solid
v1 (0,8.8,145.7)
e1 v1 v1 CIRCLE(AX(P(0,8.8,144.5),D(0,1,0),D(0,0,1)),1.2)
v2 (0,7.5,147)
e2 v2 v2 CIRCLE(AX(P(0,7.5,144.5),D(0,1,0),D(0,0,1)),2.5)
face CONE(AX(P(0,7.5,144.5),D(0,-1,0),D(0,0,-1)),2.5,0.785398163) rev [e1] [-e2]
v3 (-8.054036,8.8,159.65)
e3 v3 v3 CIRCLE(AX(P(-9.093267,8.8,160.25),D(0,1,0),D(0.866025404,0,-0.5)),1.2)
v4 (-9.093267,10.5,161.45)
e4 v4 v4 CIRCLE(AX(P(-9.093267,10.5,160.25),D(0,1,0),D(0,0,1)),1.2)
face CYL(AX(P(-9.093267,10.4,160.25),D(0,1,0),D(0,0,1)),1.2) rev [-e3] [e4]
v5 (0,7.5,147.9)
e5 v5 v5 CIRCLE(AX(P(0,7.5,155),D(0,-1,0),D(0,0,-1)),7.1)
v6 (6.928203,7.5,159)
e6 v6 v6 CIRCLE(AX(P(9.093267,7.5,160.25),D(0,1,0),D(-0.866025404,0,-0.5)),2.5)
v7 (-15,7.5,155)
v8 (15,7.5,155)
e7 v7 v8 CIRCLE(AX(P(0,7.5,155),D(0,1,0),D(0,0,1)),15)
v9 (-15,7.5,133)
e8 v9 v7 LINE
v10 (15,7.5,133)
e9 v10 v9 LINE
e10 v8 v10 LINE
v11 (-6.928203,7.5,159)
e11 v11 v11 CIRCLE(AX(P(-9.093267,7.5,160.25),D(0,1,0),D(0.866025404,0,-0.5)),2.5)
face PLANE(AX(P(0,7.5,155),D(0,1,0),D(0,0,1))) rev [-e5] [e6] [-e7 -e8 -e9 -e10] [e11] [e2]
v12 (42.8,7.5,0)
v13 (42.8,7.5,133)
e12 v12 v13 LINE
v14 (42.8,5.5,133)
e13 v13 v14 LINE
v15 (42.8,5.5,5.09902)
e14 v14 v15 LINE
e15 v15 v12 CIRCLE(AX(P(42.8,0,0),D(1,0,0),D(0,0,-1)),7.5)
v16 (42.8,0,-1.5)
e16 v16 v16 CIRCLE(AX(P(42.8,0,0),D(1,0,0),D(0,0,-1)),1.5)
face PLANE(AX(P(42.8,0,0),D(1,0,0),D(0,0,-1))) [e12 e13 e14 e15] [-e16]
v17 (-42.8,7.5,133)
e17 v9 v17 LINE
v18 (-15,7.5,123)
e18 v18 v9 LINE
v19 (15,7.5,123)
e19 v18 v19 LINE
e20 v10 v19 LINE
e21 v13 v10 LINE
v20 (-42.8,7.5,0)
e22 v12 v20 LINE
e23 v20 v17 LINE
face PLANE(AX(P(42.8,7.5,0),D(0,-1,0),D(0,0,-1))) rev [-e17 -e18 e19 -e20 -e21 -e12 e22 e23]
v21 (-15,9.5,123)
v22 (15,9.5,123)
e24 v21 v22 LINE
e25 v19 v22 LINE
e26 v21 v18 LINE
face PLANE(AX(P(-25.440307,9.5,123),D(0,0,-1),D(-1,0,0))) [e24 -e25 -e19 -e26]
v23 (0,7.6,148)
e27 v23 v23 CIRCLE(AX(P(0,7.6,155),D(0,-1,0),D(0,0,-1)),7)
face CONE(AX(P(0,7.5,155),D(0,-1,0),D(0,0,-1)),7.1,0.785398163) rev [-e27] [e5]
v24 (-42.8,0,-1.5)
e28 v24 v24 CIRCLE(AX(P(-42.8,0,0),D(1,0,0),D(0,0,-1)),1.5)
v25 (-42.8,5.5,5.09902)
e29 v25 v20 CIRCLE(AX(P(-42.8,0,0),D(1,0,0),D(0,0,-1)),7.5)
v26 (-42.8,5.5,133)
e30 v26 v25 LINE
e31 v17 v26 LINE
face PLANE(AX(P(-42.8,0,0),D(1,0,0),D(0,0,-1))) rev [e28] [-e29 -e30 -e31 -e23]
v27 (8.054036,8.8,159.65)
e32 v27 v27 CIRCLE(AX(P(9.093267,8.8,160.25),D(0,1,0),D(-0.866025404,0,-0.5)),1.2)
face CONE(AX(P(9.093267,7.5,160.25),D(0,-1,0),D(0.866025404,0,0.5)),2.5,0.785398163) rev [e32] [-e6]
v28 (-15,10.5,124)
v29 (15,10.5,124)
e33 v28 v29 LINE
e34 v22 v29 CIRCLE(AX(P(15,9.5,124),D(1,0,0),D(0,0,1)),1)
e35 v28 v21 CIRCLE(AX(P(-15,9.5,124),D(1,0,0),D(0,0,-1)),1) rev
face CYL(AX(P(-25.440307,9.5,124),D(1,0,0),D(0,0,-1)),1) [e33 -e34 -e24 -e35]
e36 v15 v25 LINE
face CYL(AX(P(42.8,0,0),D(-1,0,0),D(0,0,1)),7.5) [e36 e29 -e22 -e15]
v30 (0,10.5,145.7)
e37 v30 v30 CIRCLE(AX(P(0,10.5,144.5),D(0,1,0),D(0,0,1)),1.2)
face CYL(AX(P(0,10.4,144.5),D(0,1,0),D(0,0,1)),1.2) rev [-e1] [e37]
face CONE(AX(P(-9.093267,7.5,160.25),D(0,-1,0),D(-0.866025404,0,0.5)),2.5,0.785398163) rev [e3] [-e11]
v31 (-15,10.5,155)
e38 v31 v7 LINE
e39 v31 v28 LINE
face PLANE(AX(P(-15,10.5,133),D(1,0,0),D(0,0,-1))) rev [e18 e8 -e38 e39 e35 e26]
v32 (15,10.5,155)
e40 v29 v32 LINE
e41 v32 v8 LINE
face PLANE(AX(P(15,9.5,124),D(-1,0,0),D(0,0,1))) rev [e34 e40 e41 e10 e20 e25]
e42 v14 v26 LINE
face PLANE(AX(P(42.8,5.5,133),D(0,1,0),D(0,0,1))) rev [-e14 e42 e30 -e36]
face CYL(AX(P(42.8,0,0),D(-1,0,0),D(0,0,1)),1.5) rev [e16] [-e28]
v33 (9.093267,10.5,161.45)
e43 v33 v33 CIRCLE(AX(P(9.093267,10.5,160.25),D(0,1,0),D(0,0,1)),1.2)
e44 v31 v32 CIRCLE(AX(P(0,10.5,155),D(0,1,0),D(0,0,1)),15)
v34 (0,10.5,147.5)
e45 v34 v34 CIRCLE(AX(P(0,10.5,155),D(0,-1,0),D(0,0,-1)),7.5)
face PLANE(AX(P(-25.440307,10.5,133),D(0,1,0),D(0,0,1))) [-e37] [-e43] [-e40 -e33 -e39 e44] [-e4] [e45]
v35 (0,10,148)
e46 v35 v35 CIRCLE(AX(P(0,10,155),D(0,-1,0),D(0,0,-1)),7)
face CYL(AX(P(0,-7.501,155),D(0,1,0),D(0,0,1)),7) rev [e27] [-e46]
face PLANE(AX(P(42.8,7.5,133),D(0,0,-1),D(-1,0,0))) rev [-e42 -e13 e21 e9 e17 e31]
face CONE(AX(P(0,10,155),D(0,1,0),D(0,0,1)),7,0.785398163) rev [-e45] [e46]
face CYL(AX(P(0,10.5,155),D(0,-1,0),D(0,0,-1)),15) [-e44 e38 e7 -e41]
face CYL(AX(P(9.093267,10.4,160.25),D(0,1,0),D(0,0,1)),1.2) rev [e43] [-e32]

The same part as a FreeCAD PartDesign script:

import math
import FreeCAD as App
import Part
import Sketcher

V = App.Vector
Q = App.Units.Quantity


def add_polygon(sketch, points):
    """Adds a closed chain of lines whose ends are joined by coincident constraints."""
    first, n = sketch.GeometryCount, len(points)
    for a, b in zip(points, points[1:] + points[:1]):
        sketch.addGeometry(Part.LineSegment(App.Vector(*a, 0), App.Vector(*b, 0)), False)
    for i in range(n):
        sketch.addConstraint(Sketcher.Constraint("Coincident", first + i, 2, first + (i + 1) % n, 1))

doc = App.newDocument("Part")
body = doc.addObject("PartDesign::Body", "Body")

# Sketch on YZ plane
sketch1 = body.newObject("Sketcher::SketchObject", "Sketch")
sketch1.AttachmentSupport = (doc.getObject("YZ_Plane"), [""])
sketch1.MapMode = "FlatFace"
sketch1.addGeometry([
    Part.LineSegment(V(7.5, 0, 0), V(7.5, 133, 0)),  # 0
    Part.LineSegment(V(7.5, 133, 0), V(5.5, 133, 0)),  # 1
    Part.LineSegment(V(5.5, 133, 0), V(5.5, 5.1, 0)),  # 2
    Part.ArcOfCircle(Part.Circle(V(0, 0, 0), V(0, 0, 1), 7.5), math.radians(43), math.radians(360)),  # 3
    Part.Circle(V(0, 0, 0), V(0, 0, 1), 1.5),  # 4
], False)
sketch1.addConstraint([
    Sketcher.Constraint("Coincident", 0, 2, 1, 1),
    Sketcher.Constraint("Coincident", 1, 2, 2, 1),
    Sketcher.Constraint("Coincident", 2, 2, 3, 1),
    Sketcher.Constraint("Tangent", 3, 2, 0, 1),
    Sketcher.Constraint("Vertical", 0),
    Sketcher.Constraint("Horizontal", 1),
    Sketcher.Constraint("Vertical", 2),
    Sketcher.Constraint("Coincident", 3, 3, -1, 1),
    Sketcher.Constraint("Coincident", 4, 3, -1, 1),
    Sketcher.Constraint("Diameter", 4, 3.0),
    Sketcher.Constraint("Radius", 3, 7.5),
    Sketcher.Constraint("DistanceX", 1, 2, 1, 1, 2.0),
    Sketcher.Constraint("DistanceY", 0, 1, 0, 2, 133.0),
])
pad1 = body.newObject("PartDesign::Pad", "Pad")
pad1.Profile = sketch1
pad1.Length = 85.6
pad1.Midplane = True
body2 = doc.addObject("PartDesign::Body", "Body001")

# Sketch on XZ plane
sketch2 = body2.newObject("Sketcher::SketchObject", "Sketch001")
sketch2.AttachmentSupport = (doc.getObject("XZ_Plane001"), [""])
sketch2.MapMode = "FlatFace"
sketch2.AttachmentOffset = App.Placement(V(0, 0, -7.5), App.Rotation())
sketch2.addGeometry([
    Part.LineSegment(V(15, 155, 0), V(15, 133, 0)),
    Part.LineSegment(V(15, 133, 0), V(-15, 133, 0)),
    Part.LineSegment(V(-15, 133, 0), V(-15, 155, 0)),
    Part.ArcOfCircle(Part.Circle(V(0, 155, 0), V(0, 0, 1), 15), math.radians(0), math.radians(180)),
], False)
sketch2.addConstraint([
    Sketcher.Constraint("Coincident", 0, 2, 1, 1),
    Sketcher.Constraint("Coincident", 1, 2, 2, 1),
    Sketcher.Constraint("Tangent", 2, 2, 3, 2),
    Sketcher.Constraint("Tangent", 3, 1, 0, 1),
    Sketcher.Constraint("Vertical", 0),
    Sketcher.Constraint("Horizontal", 1),
    Sketcher.Constraint("Vertical", 2),
    Sketcher.Constraint("PointOnObject", 3, 3, -2),
    Sketcher.Constraint("Radius", 3, 15.0),
    Sketcher.Constraint("DistanceY", 0, 2, 0, 1, 22.0),
    Sketcher.Constraint("DistanceY", -1, 1, 3, 3, 155.0),
])
pad2 = body2.newObject("PartDesign::Pad", "Pad001")
pad2.Profile = sketch2
pad2.Length = 3
pad2.Reversed = True
body.AllowCompound = True
doc.recompute()

boolean = body.newObject("PartDesign::Boolean", "Boolean")
boolean.Type = "Fuse"
boolean.addObjects([body2])

# Sketch on YZ plane
sketch3 = body.newObject("Sketcher::SketchObject", "Sketch002")
sketch3.AttachmentSupport = (doc.getObject("YZ_Plane"), [""])
sketch3.MapMode = "FlatFace"
sketch3.AttachmentOffset = App.Placement(V(0, 0, 15), App.Rotation())
sketch3.addGeometry([
    Part.LineSegment(V(10.5, 133, 0), V(7.5, 133, 0)),  # 0
    Part.LineSegment(V(7.5, 133, 0), V(7.5, 123, 0)),  # 1
    Part.LineSegment(V(7.5, 123, 0), V(9.5, 123, 0)),  # 2
    Part.ArcOfCircle(Part.Circle(V(9.5, 124, 0), V(0, 0, 1), 1), math.radians(-90), math.radians(0)),  # 3
    Part.LineSegment(V(10.5, 124, 0), V(10.5, 133, 0)),  # 4
], False)
sketch3.addConstraint([
    Sketcher.Constraint("Coincident", 0, 2, 1, 1),
    Sketcher.Constraint("Coincident", 1, 2, 2, 1),
    Sketcher.Constraint("Tangent", 2, 2, 3, 1),
    Sketcher.Constraint("Tangent", 3, 2, 4, 1),
    Sketcher.Constraint("Coincident", 4, 2, 0, 1),
    Sketcher.Constraint("Horizontal", 0),
    Sketcher.Constraint("Vertical", 1),
    Sketcher.Constraint("Horizontal", 2),
    Sketcher.Constraint("Vertical", 4),
    Sketcher.Constraint("Radius", 3, 1.0),
    Sketcher.Constraint("DistanceX", 0, 2, 0, 1, 3.0),
    Sketcher.Constraint("DistanceY", 1, 2, 1, 1, 10.0),
    Sketcher.Constraint("DistanceY", -1, 1, 3, 3, 124.0),
    Sketcher.Constraint("DistanceX", -1, 1, 3, 3, 9.5),
])
pad3 = body.newObject("PartDesign::Pad", "Pad002")
pad3.Profile = sketch3
pad3.Length = 30
pad3.Reversed = True

# Sketch on XZ plane
sketch4 = body.newObject("Sketcher::SketchObject", "Sketch003")
sketch4.AttachmentSupport = (doc.getObject("XZ_Plane"), [""])
sketch4.MapMode = "FlatFace"
sketch4.AttachmentOffset = App.Placement(V(0, 0, -10.5), App.Rotation())
sketch4.addGeometry(Part.Circle(V(0, 155, 0), V(0, 0, 1), 7), False)
sketch4.addConstraint([
    Sketcher.Constraint("PointOnObject", 0, 3, -2),
    Sketcher.Constraint("Diameter", 0, 14.0),
    Sketcher.Constraint("DistanceY", -1, 1, 0, 3, 155.0),
])
pocket1 = body.newObject("PartDesign::Pocket", "Pocket")
pocket1.Profile = sketch4
pocket1.Type = "UpToFirst"
pocket1.Reversed = True

# Sketch on XZ plane
sketch5 = body.newObject("Sketcher::SketchObject", "Sketch004")
sketch5.AttachmentSupport = (doc.getObject("XZ_Plane"), [""])
sketch5.MapMode = "FlatFace"
sketch5.AttachmentOffset = App.Placement(V(0, 0, -10.5), App.Rotation())
sketch5.addGeometry([
    Part.Circle(V(0, 144.5, 0), V(0, 0, 1), 1.2),
    Part.Circle(V(9.1, 160.2, 0), V(0, 0, 1), 1.2),
    Part.Circle(V(-9.1, 160.2, 0), V(0, 0, 1), 1.2),
], False)
sketch5.addConstraint([
    Sketcher.Constraint("Equal", 0, 1),
    Sketcher.Constraint("Equal", 1, 2),
    Sketcher.Constraint("Symmetric", 1, 3, 2, 3, -2),
    Sketcher.Constraint("PointOnObject", 0, 3, -2),
    Sketcher.Constraint("Diameter", 0, 2.4),
    Sketcher.Constraint("DistanceY", -1, 1, 0, 3, 144.5),
    Sketcher.Constraint("DistanceY", -1, 1, 1, 3, 160.25),
    Sketcher.Constraint("DistanceX", -1, 1, 1, 3, 9.093267),
])
pocket2 = body.newObject("PartDesign::Pocket", "Pocket001")
pocket2.Profile = sketch5
pocket2.Length = 0.1
pocket2.Reversed = True

# Sketch on YZ plane
sketch6 = body.newObject("Sketcher::SketchObject", "Sketch005")
sketch6.AttachmentSupport = (doc.getObject("YZ_Plane"), [""])
sketch6.MapMode = "FlatFace"
add_polygon(sketch6, [(7.5, 144.5), (7.5, 142), (8.8, 143.3), (10.5, 143.3), (10.5, 144.5)])  # lines 0-4
sketch6.addGeometry(Part.LineSegment(V(10.5, 144.5, 0), V(7.5, 144.5, 0)), True)  # axis
sketch6.addConstraint([
    Sketcher.Constraint("Vertical", 0),
    Sketcher.Constraint("Horizontal", 2),
    Sketcher.Constraint("Vertical", 3),
    Sketcher.Constraint("Horizontal", 4),
    Sketcher.Constraint("Horizontal", 5),
    Sketcher.Constraint("Coincident", 5, 1, 3, 2),
    Sketcher.Constraint("Vertical", 0, 2, 5, 2),
    Sketcher.Constraint("DistanceX", 4, 2, 4, 1, 3.0),
    Sketcher.Constraint("Angle", 1, Q("45 deg")),
    Sketcher.Constraint("DistanceX", 2, 1, 2, 2, 1.7),
    Sketcher.Constraint("DistanceY", 0, 2, 0, 1, 2.5),
    Sketcher.Constraint("DistanceY", -1, 1, 0, 2, 142.0),
    Sketcher.Constraint("DistanceX", -1, 1, 0, 2, 7.5),
])
groove = body.newObject("PartDesign::Groove", "Groove")
groove.Profile = sketch6
groove.ReferenceAxis = (sketch6, ["Axis0"])
groove.Angle = 360
doc.recompute()

datumline = body.newObject("PartDesign::Line", "DatumLine")
datumline.Placement = App.Placement(V(0, 0, 155), App.Rotation(V(0, 0, 1), V(0, 1, 0)))
polarpattern = body.newObject("PartDesign::PolarPattern", "PolarPattern")
polarpattern.Originals = [groove]
polarpattern.Axis = (datumline, [""])
polarpattern.Angle = 360
polarpattern.Occurrences = 3
body.Tip = polarpattern

# Sketch on YZ plane
sketch7 = body.newObject("Sketcher::SketchObject", "Sketch006")
sketch7.AttachmentSupport = (doc.getObject("YZ_Plane"), [""])
sketch7.MapMode = "FlatFace"
add_polygon(sketch7, [(7.5, 148), (7.5, 147.9), (7.6, 148)])  # lines 0-2
add_polygon(sketch7, [(10.5, 147.5), (10.5, 155), (10, 155), (10, 148)])  # lines 3-6
sketch7.addGeometry(Part.LineSegment(V(7.5, 155, 0), V(10.5, 155, 0)), True)  # axis
sketch7.addConstraint([
    Sketcher.Constraint("Vertical", 0),
    Sketcher.Constraint("Horizontal", 2),
    Sketcher.Constraint("Vertical", 3),
    Sketcher.Constraint("Horizontal", 4),
    Sketcher.Constraint("Vertical", 5),
    Sketcher.Constraint("Horizontal", 7),
    Sketcher.Constraint("Coincident", 7, 2, 3, 2),
    Sketcher.Constraint("Perpendicular", 1, 6),
    Sketcher.Constraint("Horizontal", 2, 2, 5, 2),
    Sketcher.Constraint("Vertical", 2, 2, 7, 1),
    Sketcher.Constraint("Equal", 2, 0),
    Sketcher.Constraint("DistanceX", 7, 1, 7, 2, 3.0),
    Sketcher.Constraint("DistanceY", 5, 2, 5, 1, 7.0),
    Sketcher.Constraint("DistanceX", 2, 2, 2, 1, 0.1),
    Sketcher.Constraint("DistanceX", 4, 2, 4, 1, 0.5),
    Sketcher.Constraint("DistanceY", -1, 1, 1, 2, 148.0),
    Sketcher.Constraint("DistanceX", -1, 1, 4, 2, 10.0),
])
groove2 = body.newObject("PartDesign::Groove", "Groove001")
groove2.Profile = sketch7
groove2.ReferenceAxis = (sketch7, ["Axis0"])
groove2.Angle = 360

doc.recompute()
